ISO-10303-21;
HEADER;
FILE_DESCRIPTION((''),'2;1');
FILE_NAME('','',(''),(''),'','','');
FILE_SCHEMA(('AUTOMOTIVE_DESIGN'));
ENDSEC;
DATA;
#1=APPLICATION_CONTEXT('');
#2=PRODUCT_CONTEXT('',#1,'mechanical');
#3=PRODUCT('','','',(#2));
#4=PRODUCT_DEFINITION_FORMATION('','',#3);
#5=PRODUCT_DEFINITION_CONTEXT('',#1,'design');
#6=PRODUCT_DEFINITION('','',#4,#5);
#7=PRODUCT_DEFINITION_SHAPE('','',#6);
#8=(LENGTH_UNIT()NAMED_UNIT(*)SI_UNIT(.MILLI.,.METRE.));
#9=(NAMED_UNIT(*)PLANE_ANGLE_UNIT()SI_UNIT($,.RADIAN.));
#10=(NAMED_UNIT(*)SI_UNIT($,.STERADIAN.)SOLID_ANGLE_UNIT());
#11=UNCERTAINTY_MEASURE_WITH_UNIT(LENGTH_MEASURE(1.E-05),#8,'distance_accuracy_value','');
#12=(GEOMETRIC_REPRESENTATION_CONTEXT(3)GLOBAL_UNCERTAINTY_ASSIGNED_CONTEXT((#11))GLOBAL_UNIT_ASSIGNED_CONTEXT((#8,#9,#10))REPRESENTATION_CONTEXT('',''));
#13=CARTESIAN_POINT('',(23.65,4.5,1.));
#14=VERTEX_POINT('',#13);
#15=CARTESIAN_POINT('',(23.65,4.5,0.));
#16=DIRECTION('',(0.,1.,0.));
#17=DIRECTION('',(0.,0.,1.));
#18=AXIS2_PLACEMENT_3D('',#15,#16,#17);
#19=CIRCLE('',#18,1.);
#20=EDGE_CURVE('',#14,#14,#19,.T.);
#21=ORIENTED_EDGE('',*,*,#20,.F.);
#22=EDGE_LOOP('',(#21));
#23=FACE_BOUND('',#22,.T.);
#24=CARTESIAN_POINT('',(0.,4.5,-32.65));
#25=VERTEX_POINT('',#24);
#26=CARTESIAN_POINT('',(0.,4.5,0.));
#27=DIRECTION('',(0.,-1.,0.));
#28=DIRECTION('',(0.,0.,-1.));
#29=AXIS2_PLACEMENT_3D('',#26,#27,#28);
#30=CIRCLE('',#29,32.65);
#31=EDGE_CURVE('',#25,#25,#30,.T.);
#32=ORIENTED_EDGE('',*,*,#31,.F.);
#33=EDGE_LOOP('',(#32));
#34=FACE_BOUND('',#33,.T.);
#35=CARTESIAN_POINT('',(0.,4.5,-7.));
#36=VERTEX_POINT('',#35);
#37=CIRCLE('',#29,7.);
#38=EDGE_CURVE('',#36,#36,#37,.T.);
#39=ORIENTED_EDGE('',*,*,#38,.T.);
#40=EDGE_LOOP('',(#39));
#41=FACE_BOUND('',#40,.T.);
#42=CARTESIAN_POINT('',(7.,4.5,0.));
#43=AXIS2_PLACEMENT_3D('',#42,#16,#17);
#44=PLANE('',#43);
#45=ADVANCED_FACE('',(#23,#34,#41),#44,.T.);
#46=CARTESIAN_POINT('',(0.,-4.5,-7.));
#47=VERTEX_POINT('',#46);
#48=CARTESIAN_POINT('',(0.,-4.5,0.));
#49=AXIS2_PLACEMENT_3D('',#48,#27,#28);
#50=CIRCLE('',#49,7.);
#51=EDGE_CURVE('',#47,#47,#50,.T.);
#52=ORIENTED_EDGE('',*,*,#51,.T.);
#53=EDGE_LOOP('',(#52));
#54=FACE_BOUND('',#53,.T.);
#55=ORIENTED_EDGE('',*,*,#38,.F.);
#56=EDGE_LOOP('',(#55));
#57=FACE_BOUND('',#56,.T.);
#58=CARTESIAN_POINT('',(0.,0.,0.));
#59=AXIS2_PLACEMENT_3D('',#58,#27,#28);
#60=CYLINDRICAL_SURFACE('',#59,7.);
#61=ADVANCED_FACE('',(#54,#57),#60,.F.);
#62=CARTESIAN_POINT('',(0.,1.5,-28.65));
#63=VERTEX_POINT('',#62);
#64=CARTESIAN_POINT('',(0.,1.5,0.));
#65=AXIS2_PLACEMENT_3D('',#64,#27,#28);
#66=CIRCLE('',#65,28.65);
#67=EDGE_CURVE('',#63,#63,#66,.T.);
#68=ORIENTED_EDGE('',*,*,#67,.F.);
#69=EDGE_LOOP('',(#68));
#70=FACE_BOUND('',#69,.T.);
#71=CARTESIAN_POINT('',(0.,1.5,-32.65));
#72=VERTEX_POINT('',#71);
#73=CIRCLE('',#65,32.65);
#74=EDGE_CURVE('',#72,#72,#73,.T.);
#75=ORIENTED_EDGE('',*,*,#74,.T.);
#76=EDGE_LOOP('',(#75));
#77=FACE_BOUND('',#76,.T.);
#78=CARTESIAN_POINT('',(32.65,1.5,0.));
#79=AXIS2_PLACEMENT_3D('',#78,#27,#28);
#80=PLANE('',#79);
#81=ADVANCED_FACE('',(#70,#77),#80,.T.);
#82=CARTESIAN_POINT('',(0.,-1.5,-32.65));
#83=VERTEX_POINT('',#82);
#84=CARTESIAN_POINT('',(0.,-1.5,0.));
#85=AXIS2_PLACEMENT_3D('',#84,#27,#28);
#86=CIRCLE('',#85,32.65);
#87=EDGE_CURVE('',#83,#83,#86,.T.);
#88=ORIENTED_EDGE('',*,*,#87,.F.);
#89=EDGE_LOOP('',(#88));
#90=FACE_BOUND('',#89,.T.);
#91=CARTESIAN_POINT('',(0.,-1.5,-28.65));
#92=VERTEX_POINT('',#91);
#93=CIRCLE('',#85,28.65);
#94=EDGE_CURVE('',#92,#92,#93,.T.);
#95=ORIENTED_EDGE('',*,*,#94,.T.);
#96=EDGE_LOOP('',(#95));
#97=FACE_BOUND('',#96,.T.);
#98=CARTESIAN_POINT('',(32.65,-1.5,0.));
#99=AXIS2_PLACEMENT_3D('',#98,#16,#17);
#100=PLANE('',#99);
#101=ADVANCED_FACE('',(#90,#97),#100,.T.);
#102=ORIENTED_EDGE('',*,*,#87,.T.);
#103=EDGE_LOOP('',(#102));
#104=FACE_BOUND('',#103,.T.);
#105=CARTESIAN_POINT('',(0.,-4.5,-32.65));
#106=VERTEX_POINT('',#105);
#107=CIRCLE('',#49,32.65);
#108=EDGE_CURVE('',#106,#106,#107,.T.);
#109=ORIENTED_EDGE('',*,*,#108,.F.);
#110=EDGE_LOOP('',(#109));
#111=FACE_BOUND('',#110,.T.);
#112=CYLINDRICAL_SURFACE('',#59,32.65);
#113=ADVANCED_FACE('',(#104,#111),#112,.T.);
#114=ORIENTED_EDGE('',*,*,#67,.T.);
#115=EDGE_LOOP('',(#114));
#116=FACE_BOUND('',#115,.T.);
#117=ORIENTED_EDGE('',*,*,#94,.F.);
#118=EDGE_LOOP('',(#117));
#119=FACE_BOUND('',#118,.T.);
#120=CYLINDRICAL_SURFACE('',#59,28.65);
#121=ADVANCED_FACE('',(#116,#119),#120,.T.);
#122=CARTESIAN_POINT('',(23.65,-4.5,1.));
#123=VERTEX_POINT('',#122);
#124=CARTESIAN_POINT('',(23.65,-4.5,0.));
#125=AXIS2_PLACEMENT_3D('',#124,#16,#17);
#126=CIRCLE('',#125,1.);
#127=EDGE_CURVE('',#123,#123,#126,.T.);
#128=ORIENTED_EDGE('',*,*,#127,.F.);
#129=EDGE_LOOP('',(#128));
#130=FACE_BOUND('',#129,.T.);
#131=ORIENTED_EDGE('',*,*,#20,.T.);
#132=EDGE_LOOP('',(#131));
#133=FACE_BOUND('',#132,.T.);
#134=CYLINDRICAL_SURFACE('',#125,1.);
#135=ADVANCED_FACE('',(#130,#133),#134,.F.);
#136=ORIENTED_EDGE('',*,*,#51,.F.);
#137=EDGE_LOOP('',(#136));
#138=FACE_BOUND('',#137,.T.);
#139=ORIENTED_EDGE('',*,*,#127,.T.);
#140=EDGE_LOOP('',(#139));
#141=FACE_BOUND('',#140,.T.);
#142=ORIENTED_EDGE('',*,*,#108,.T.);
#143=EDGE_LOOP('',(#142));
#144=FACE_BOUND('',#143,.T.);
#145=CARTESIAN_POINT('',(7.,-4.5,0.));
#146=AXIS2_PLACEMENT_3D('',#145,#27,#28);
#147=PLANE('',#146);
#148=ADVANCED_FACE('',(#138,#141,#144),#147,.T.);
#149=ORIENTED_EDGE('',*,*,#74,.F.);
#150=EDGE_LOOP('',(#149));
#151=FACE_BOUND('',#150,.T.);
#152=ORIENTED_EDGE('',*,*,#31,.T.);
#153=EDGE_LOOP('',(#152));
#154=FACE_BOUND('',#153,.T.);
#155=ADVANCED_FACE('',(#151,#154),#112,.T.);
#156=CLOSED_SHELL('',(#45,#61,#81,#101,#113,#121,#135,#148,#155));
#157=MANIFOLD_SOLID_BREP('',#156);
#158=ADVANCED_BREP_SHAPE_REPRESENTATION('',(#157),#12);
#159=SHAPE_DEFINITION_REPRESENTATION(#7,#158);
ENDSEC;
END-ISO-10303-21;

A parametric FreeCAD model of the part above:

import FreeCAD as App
import Part
import Sketcher
from FreeCAD import Vector

doc = App.newDocument("Part")
body = doc.addObject("PartDesign::Body", "Body")

# Sketch on XY plane
sketch1 = doc.addObject("Sketcher::SketchObject", "Sketch")
body.addObject(sketch1)
sketch1.AttachmentSupport = (doc.XY_Plane, [""])
sketch1.MapMode = "FlatFace"
sketch1.addGeometry([
    Part.LineSegment(Vector(32.65, 4.5, 0), Vector(7, 4.5, 0)),  # 0
    Part.LineSegment(Vector(7, 4.5, 0), Vector(7, -4.5, 0)),  # 1
    Part.LineSegment(Vector(7, -4.5, 0), Vector(32.65, -4.5, 0)),  # 2
    Part.LineSegment(Vector(32.65, -4.5, 0), Vector(32.65, -1.5, 0)),  # 3
    Part.LineSegment(Vector(32.65, -1.5, 0), Vector(28.65, -1.5, 0)),  # 4
    Part.LineSegment(Vector(28.65, -1.5, 0), Vector(28.65, 1.5, 0)),  # 5
    Part.LineSegment(Vector(28.65, 1.5, 0), Vector(32.65, 1.5, 0)),  # 6
    Part.LineSegment(Vector(32.65, 1.5, 0), Vector(32.65, 4.5, 0)),  # 7
], False)
sketch1.addConstraint([
    Sketcher.Constraint("Coincident", 0, 2, 1, 1),
    Sketcher.Constraint("Coincident", 1, 2, 2, 1),
    Sketcher.Constraint("Coincident", 2, 2, 3, 1),
    Sketcher.Constraint("Coincident", 3, 2, 4, 1),
    Sketcher.Constraint("Coincident", 4, 2, 5, 1),
    Sketcher.Constraint("Coincident", 5, 2, 6, 1),
    Sketcher.Constraint("Coincident", 6, 2, 7, 1),
    Sketcher.Constraint("Coincident", 7, 2, 0, 1),
    Sketcher.Constraint("Horizontal", 0),
    Sketcher.Constraint("Vertical", 1),
    Sketcher.Constraint("Horizontal", 2),
    Sketcher.Constraint("Vertical", 3),
    Sketcher.Constraint("Horizontal", 4),
    Sketcher.Constraint("Vertical", 5),
    Sketcher.Constraint("Horizontal", 6),
    Sketcher.Constraint("Vertical", 7),
    Sketcher.Constraint("Symmetric", 3, 2, 6, 2, -1),
    Sketcher.Constraint("Equal", 3, 5),
    Sketcher.Constraint("Equal", 5, 7),
    Sketcher.Constraint("DistanceX", 4, 2, 4, 1, 4.0),
    Sketcher.Constraint("DistanceY", 1, 2, 1, 1, 9.0),
    Sketcher.Constraint("DistanceX", -1, 1, 0, 2, 7.0),
    Sketcher.Constraint("DistanceX", 0, 2, 0, 1, 25.65),
])
revolution = doc.addObject("PartDesign::Revolution", "Revolution")
body.addObject(revolution)
revolution.Profile = sketch1
revolution.ReferenceAxis = (sketch1, ["V_Axis"])
revolution.Angle = 360

# Sketch on XZ plane
sketch2 = doc.addObject("Sketcher::SketchObject", "Sketch001")
body.addObject(sketch2)
sketch2.AttachmentSupport = (doc.XZ_Plane, [""])
sketch2.MapMode = "FlatFace"
sketch2.AttachmentOffset = App.Placement(Vector(0, 0, -4.5), App.Rotation())
sketch2.addGeometry(Part.Circle(Vector(23.65, 0, 0), Vector(0, 0, 1), 1), False)
sketch2.addConstraint([
    Sketcher.Constraint("PointOnObject", 0, 3, -1),
    Sketcher.Constraint("Diameter", 0, 2.0),
    Sketcher.Constraint("DistanceX", -1, 1, 0, 3, 23.65),
])
pocket1 = doc.addObject("PartDesign::Pocket", "Pocket")
body.addObject(pocket1)
pocket1.Profile = sketch2
pocket1.Type = "ThroughAll"
pocket1.Reversed = True

doc.recompute()
